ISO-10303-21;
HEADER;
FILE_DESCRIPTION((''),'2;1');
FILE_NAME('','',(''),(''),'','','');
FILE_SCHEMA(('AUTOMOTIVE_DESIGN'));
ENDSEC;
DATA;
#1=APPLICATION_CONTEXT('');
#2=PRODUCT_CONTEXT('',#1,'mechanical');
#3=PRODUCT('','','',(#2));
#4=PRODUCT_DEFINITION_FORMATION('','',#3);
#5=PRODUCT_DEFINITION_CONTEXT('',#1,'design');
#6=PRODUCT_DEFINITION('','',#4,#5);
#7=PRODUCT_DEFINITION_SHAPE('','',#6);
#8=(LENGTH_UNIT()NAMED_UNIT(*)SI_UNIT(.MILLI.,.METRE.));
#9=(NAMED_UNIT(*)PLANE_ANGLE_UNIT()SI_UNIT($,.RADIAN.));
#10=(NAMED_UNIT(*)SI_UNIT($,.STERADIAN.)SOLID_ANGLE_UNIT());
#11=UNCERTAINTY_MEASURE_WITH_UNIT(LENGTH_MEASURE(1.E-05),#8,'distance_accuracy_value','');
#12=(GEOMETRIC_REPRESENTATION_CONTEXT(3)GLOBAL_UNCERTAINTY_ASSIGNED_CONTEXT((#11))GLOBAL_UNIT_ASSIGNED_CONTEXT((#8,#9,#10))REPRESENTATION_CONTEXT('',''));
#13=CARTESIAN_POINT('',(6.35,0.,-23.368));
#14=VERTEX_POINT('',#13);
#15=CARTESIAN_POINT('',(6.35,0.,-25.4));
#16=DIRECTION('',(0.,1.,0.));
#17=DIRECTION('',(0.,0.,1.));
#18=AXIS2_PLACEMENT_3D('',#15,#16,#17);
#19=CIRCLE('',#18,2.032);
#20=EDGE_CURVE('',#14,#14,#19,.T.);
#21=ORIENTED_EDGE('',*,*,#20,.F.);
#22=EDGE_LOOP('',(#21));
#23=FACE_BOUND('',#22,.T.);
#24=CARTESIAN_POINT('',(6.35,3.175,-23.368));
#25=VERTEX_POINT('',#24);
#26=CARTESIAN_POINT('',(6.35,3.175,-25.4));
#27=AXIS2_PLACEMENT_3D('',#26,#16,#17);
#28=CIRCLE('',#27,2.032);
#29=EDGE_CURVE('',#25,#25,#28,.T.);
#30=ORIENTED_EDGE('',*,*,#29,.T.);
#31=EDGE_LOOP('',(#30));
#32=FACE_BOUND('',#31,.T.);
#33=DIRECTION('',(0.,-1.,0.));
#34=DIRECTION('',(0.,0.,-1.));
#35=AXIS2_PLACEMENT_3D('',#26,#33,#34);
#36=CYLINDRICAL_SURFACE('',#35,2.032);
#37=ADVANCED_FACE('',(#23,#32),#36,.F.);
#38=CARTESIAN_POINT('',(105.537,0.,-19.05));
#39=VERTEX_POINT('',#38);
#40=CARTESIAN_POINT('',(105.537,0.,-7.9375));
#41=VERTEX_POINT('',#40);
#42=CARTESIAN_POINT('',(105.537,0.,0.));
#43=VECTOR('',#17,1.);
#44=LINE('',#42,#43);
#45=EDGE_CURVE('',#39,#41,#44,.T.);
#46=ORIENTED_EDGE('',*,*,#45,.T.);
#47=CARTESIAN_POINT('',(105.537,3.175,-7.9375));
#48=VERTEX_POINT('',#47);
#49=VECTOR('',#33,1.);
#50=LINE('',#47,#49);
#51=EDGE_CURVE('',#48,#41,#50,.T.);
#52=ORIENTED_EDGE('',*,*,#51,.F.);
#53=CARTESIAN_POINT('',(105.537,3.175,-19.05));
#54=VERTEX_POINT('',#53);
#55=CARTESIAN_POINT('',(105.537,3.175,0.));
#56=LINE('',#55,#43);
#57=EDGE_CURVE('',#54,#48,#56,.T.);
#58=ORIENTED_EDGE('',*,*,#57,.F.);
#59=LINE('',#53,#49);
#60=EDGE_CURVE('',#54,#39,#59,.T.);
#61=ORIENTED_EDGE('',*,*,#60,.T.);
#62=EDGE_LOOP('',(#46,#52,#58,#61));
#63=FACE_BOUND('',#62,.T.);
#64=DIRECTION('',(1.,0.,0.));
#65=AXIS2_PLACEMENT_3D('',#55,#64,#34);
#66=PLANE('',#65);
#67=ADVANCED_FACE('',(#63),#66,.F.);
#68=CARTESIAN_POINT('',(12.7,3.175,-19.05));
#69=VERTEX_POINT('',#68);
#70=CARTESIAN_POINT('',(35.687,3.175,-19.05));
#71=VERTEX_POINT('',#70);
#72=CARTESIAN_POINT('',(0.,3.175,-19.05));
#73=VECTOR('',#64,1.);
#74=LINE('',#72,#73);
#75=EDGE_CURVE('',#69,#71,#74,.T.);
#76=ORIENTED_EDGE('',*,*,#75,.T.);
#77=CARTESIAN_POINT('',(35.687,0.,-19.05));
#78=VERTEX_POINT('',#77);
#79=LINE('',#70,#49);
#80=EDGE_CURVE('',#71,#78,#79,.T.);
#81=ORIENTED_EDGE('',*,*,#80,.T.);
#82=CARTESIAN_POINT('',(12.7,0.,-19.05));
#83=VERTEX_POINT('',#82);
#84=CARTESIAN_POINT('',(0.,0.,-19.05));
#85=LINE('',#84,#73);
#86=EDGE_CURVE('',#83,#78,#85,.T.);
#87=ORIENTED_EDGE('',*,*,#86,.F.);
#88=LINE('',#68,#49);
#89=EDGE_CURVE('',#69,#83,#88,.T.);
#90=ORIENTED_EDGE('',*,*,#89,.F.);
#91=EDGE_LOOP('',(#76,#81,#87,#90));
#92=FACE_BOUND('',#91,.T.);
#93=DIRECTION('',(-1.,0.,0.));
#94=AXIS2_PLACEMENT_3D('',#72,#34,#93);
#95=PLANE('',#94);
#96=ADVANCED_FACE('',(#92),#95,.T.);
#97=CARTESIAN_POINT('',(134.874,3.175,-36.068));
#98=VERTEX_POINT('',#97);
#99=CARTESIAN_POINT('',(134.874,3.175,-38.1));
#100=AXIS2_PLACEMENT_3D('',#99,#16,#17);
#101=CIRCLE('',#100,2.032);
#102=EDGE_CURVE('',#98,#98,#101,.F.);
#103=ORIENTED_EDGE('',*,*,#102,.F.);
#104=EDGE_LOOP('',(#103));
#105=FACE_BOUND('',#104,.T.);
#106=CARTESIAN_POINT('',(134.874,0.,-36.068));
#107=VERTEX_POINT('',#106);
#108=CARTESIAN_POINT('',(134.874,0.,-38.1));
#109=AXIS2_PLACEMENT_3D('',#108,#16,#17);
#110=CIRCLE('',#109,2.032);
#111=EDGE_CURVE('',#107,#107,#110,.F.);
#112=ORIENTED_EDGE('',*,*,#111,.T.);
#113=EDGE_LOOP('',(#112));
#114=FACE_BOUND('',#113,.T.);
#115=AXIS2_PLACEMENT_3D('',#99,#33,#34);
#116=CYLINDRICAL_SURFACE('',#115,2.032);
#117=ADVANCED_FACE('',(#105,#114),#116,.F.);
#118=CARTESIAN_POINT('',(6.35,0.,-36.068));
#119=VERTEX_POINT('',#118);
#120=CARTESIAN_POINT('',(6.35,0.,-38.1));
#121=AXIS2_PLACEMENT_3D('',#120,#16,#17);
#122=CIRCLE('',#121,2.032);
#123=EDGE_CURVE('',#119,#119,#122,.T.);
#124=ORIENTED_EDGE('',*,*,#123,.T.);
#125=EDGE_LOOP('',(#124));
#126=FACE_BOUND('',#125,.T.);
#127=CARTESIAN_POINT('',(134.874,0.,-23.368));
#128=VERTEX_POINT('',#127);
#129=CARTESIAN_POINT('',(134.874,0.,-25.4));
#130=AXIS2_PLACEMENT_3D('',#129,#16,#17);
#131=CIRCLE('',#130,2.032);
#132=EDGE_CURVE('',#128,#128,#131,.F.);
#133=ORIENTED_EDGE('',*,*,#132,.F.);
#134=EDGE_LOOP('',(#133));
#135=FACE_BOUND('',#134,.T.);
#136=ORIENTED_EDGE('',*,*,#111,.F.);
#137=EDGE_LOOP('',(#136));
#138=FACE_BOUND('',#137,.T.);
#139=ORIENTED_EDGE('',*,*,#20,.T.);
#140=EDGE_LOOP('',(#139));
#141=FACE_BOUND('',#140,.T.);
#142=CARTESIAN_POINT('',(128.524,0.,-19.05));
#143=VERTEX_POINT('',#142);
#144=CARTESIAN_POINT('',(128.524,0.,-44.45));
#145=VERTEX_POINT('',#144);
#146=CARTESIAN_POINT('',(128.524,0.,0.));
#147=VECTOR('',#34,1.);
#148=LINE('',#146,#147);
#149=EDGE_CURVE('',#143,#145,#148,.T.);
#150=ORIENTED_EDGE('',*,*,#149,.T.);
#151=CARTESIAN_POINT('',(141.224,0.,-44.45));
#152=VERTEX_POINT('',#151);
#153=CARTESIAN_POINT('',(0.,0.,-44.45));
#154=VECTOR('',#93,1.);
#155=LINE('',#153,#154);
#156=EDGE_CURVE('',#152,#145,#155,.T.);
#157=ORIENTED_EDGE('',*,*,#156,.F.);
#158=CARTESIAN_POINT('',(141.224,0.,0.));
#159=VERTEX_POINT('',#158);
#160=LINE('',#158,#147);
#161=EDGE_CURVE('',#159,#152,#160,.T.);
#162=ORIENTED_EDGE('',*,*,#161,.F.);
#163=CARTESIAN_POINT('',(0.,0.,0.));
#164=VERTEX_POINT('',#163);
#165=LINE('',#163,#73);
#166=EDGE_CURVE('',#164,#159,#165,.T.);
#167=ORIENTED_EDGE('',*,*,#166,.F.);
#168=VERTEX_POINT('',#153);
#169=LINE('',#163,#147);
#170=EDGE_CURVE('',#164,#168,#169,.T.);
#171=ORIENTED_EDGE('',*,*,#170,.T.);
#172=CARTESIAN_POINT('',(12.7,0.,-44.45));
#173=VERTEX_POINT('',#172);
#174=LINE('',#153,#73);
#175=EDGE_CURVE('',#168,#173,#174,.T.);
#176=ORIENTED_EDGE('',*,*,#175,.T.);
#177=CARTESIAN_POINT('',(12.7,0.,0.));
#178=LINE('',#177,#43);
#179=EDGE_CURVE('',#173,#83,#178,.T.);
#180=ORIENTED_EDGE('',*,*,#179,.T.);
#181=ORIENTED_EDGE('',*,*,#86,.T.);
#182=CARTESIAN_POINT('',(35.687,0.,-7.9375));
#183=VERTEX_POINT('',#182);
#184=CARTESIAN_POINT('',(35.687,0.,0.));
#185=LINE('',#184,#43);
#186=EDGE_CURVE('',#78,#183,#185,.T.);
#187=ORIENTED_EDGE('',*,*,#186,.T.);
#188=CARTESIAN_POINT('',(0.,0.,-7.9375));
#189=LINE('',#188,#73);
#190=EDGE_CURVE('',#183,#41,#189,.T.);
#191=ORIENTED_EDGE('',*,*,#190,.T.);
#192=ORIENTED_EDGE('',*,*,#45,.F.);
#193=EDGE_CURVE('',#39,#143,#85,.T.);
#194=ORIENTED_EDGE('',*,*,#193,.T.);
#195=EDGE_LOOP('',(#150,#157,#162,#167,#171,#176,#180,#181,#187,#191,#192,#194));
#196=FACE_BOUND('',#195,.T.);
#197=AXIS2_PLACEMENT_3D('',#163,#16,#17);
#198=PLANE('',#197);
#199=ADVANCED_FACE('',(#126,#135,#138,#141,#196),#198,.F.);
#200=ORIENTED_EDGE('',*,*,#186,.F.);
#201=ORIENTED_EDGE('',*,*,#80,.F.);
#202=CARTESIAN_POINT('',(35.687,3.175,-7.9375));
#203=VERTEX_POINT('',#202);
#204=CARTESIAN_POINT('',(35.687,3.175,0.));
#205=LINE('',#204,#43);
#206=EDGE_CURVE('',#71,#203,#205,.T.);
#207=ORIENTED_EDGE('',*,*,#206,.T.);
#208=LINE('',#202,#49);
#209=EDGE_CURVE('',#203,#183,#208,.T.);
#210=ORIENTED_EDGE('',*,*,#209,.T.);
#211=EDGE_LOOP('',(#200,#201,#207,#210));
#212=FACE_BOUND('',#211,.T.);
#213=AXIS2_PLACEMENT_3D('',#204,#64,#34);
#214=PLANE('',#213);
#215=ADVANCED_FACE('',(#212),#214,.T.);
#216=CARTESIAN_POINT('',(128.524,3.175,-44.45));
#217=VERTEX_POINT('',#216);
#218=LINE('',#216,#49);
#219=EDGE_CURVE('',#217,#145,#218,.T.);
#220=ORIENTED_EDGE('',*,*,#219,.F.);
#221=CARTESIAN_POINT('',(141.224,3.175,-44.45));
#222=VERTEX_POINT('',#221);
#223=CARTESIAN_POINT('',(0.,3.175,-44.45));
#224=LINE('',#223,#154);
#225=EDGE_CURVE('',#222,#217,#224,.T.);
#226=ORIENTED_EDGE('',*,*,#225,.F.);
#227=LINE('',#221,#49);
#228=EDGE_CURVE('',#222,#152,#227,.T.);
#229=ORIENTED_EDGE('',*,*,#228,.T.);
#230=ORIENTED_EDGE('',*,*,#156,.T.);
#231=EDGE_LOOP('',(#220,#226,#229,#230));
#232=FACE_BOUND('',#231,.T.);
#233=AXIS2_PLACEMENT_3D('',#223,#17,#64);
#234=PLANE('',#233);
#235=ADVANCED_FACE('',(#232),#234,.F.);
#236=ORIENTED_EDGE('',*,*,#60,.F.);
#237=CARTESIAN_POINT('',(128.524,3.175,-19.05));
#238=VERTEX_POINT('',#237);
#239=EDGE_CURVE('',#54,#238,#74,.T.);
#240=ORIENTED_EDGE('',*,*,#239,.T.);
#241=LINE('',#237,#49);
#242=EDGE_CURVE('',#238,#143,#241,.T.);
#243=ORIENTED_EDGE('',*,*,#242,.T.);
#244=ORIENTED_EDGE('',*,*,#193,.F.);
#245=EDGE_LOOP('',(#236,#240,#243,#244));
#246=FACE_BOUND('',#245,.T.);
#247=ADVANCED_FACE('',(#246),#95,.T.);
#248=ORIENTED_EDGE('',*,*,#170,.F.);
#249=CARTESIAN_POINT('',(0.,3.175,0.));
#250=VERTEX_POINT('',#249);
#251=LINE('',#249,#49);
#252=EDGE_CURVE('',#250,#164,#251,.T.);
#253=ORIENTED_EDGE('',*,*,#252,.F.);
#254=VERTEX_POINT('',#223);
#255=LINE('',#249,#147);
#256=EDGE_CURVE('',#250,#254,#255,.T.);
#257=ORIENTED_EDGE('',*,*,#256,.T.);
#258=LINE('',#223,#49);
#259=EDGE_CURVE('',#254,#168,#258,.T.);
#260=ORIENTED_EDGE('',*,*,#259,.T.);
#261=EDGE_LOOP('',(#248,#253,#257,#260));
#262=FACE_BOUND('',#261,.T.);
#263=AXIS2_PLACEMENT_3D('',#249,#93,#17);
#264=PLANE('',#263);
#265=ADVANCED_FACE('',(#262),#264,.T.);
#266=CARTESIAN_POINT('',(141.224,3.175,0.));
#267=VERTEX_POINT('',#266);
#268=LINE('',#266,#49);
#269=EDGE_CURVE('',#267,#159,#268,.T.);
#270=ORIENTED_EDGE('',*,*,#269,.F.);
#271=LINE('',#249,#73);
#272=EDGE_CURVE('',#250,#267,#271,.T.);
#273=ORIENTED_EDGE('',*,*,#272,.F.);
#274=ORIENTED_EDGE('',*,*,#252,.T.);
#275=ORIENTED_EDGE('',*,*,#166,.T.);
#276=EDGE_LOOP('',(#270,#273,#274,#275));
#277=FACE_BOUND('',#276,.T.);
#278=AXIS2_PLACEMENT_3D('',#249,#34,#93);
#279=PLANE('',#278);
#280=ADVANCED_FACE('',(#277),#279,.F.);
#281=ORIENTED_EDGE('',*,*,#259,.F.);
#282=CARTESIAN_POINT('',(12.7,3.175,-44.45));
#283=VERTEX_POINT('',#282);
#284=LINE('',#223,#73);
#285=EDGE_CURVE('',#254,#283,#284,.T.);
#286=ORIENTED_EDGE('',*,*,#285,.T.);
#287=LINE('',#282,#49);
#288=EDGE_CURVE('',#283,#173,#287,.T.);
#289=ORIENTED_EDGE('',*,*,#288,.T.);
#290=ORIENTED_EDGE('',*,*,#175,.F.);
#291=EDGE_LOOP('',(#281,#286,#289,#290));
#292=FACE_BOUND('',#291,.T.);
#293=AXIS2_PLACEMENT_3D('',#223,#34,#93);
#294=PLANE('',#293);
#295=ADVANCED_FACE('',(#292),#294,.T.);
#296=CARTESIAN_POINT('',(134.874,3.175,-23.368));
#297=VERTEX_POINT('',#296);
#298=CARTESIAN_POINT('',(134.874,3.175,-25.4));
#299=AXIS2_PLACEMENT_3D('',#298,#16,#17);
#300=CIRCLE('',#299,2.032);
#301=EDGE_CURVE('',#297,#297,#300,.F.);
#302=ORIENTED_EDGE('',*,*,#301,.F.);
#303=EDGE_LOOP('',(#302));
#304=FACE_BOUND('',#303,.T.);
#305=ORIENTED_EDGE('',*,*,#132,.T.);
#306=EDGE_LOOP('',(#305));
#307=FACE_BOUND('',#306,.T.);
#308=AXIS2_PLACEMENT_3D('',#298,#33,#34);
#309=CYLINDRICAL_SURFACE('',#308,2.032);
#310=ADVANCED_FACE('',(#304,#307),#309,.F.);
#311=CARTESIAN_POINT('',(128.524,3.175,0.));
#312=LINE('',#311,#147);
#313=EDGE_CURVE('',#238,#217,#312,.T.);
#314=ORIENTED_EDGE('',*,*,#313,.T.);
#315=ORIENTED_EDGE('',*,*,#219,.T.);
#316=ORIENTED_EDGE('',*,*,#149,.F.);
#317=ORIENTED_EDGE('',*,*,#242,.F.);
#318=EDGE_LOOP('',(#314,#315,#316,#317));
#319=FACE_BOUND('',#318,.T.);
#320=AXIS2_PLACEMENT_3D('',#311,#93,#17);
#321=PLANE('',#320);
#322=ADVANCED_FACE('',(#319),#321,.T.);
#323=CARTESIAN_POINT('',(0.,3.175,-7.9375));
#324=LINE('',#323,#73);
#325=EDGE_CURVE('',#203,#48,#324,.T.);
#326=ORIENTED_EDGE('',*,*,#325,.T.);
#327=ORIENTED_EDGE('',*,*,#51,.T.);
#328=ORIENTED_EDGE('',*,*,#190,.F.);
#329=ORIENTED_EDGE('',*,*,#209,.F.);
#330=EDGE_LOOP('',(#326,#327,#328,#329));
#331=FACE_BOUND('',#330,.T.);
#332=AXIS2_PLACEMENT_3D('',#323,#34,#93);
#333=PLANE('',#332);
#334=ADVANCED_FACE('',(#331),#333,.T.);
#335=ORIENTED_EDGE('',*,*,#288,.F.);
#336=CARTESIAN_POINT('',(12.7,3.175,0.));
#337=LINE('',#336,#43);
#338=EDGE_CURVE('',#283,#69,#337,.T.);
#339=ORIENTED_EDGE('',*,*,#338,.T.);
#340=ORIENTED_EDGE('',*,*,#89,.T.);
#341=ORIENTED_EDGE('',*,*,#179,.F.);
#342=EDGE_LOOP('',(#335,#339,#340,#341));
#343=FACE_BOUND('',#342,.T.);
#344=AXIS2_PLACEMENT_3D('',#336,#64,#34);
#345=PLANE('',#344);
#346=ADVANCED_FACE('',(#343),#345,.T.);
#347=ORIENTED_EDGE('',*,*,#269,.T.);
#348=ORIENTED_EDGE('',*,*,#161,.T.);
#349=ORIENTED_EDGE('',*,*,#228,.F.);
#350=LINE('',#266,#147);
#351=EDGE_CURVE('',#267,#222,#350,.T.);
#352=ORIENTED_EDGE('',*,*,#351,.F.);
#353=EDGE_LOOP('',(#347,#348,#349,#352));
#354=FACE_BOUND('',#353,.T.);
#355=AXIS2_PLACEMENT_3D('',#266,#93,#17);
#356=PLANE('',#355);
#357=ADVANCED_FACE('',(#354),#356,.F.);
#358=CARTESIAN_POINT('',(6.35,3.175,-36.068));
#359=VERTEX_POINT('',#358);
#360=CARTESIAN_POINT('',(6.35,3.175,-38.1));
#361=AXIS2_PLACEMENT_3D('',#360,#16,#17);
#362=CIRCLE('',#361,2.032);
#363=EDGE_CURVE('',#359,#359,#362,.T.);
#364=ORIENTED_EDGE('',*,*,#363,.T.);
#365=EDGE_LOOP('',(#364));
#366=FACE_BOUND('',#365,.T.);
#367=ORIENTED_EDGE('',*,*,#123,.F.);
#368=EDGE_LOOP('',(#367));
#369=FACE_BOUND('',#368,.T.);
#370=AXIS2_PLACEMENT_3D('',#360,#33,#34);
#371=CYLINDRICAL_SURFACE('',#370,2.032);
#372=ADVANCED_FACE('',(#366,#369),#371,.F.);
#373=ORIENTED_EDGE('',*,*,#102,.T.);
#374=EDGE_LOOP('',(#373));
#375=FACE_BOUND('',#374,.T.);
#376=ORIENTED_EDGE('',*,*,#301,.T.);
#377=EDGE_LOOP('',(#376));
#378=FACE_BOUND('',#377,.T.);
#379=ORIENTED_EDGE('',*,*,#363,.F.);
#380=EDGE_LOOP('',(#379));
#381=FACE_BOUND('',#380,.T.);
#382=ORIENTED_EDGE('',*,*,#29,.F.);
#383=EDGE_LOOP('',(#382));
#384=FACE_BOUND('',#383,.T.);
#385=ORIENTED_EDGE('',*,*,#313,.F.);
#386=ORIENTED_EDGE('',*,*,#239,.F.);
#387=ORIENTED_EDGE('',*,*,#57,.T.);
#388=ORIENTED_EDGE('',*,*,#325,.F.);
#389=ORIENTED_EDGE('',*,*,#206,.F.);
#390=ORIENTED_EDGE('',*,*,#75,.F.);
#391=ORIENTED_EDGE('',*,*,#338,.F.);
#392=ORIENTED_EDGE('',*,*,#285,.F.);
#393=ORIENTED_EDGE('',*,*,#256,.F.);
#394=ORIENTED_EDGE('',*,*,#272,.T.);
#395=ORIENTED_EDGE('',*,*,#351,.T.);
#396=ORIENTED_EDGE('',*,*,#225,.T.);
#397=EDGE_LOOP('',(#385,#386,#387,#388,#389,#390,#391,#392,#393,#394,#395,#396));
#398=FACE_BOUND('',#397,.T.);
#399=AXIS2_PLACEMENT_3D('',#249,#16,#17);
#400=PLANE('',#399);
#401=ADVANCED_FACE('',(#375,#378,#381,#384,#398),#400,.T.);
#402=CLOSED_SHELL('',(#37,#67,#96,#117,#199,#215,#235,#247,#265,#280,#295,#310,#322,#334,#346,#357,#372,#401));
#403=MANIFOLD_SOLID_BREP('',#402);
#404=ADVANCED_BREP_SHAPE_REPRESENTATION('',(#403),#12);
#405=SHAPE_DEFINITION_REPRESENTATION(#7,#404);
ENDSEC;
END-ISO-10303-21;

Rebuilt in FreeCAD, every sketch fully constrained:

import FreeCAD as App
import Part
import Sketcher

V = App.Vector
Q = App.Units.Quantity


def add_polygon(sketch, points):
    """Adds a closed chain of lines whose ends are joined by coincident constraints."""
    first, n = sketch.GeometryCount, len(points)
    for a, b in zip(points, points[1:] + points[:1]):
        sketch.addGeometry(Part.LineSegment(App.Vector(*a, 0), App.Vector(*b, 0)), False)
    for i in range(n):
        sketch.addConstraint(Sketcher.Constraint("Coincident", first + i, 2, first + (i + 1) % n, 1))

doc = App.newDocument("Part")
params = doc.addObject("Spreadsheet::Sheet", "Params")
for row, (alias, value) in enumerate([
    ("sketch1_diameter", "0.16 in"),
    ("sketch1_height", "1 in"),
    ("sketch1_width", "0.5 in"),
    ("sketch1_width2", "2.75 in"),
    ("sketch1_width3", "5.56 in"),
    ("pad1_length", "0.125 in"),
], start=1):
    params.set(f"A{row}", alias)
    params.set(f"B{row}", "=" + value)
    params.setAlias(f"B{row}", alias)

body = doc.addObject("PartDesign::Body", "Body")

# Sketch on XZ plane
sketch1 = body.newObject("Sketcher::SketchObject", "Sketch")
sketch1.AttachmentSupport = (doc.getObject("XZ_Plane"), [""])
sketch1.MapMode = "FlatFace"
add_polygon(sketch1, [(128.524, -19.05), (105.537, -19.05), (105.537, -7.9375), (35.687, -7.9375), (35.687, -19.05), (12.7, -19.05), (12.7, -44.45), (0, -44.45), (0, 0), (141.224, 0), (141.224, -44.45), (128.524, -44.45)])  # lines 0-11
sketch1.addGeometry(Part.Circle(V(134.874, -25.4, 0), V(0, 0, 1), 2.032), False)  # 12
sketch1.addGeometry(Part.Circle(V(6.35, -25.4, 0), V(0, 0, 1), 2.032), False)  # 13
sketch1.addGeometry(Part.Circle(V(134.874, -38.1, 0), V(0, 0, 1), 2.032), False)  # 14
sketch1.addGeometry(Part.Circle(V(6.35, -38.1, 0), V(0, 0, 1), 2.032), False)  # 15
sketch1.addConstraint([
    Sketcher.Constraint("Horizontal", 0),
    Sketcher.Constraint("Vertical", 1),
    Sketcher.Constraint("Horizontal", 2),
    Sketcher.Constraint("Vertical", 3),
    Sketcher.Constraint("Horizontal", 4),
    Sketcher.Constraint("Vertical", 5),
    Sketcher.Constraint("Horizontal", 6),
    Sketcher.Constraint("Vertical", 7),
    Sketcher.Constraint("Horizontal", 8),
    Sketcher.Constraint("Vertical", 9),
    Sketcher.Constraint("Horizontal", 10),
    Sketcher.Constraint("Vertical", 11),
    Sketcher.Constraint("Coincident", 7, 2, -1, 1),
    Sketcher.Constraint("Equal", 12, 13),
    Sketcher.Constraint("Equal", 13, 14),
    Sketcher.Constraint("Equal", 14, 15),
    Sketcher.Constraint("Horizontal", 12, 3, 13, 3),
    Sketcher.Constraint("Horizontal", 14, 3, 15, 3),
    Sketcher.Constraint("Horizontal", 0, 2, 3, 2),
    Sketcher.Constraint("Horizontal", 6, 2, 9, 2),
    Sketcher.Constraint("Vertical", 12, 3, 14, 3),
    Sketcher.Constraint("Vertical", 13, 3, 15, 3),
    Sketcher.Constraint("Equal", 0, 4),
    Sketcher.Constraint("Equal", 6, 10),
    Sketcher.Constraint("Diameter", 12, Q("0.16 in")),
    Sketcher.Constraint("DistanceY", 5, 2, 5, 1, Q("1 in")),
    Sketcher.Constraint("DistanceX", 6, 2, 6, 1, Q("0.5 in")),
    Sketcher.Constraint("DistanceY", 12, 3, -1, 1, Q("1 in")),
    Sketcher.Constraint("DistanceX", 2, 2, 2, 1, Q("2.75 in")),
    Sketcher.Constraint("DistanceX", 8, 1, 8, 2, Q("5.56 in")),
    Sketcher.Constraint("DistanceY", 7, 1, 7, 2, Q("1.75 in")),
    Sketcher.Constraint("DistanceY", 14, 3, -1, 1, Q("1.5 in")),
    Sketcher.Constraint("DistanceY", 1, 1, 1, 2, Q("0.4375 in")),
    Sketcher.Constraint("DistanceX", -1, 1, 12, 3, Q("5.31 in")),
    Sketcher.Constraint("DistanceX", -1, 1, 13, 3, Q("0.25 in")),
])
sketch1.setExpression("Constraints[36]", "Params.sketch1_diameter")
sketch1.setExpression("Constraints[37]", "Params.sketch1_height")
sketch1.setExpression("Constraints[38]", "Params.sketch1_width")
sketch1.setExpression("Constraints[40]", "Params.sketch1_width2")
sketch1.setExpression("Constraints[41]", "Params.sketch1_width3")
pad1 = body.newObject("PartDesign::Pad", "Pad")
pad1.Profile = sketch1
pad1.setExpression("Length", "Params.pad1_length")
pad1.Reversed = True

doc.recompute()
